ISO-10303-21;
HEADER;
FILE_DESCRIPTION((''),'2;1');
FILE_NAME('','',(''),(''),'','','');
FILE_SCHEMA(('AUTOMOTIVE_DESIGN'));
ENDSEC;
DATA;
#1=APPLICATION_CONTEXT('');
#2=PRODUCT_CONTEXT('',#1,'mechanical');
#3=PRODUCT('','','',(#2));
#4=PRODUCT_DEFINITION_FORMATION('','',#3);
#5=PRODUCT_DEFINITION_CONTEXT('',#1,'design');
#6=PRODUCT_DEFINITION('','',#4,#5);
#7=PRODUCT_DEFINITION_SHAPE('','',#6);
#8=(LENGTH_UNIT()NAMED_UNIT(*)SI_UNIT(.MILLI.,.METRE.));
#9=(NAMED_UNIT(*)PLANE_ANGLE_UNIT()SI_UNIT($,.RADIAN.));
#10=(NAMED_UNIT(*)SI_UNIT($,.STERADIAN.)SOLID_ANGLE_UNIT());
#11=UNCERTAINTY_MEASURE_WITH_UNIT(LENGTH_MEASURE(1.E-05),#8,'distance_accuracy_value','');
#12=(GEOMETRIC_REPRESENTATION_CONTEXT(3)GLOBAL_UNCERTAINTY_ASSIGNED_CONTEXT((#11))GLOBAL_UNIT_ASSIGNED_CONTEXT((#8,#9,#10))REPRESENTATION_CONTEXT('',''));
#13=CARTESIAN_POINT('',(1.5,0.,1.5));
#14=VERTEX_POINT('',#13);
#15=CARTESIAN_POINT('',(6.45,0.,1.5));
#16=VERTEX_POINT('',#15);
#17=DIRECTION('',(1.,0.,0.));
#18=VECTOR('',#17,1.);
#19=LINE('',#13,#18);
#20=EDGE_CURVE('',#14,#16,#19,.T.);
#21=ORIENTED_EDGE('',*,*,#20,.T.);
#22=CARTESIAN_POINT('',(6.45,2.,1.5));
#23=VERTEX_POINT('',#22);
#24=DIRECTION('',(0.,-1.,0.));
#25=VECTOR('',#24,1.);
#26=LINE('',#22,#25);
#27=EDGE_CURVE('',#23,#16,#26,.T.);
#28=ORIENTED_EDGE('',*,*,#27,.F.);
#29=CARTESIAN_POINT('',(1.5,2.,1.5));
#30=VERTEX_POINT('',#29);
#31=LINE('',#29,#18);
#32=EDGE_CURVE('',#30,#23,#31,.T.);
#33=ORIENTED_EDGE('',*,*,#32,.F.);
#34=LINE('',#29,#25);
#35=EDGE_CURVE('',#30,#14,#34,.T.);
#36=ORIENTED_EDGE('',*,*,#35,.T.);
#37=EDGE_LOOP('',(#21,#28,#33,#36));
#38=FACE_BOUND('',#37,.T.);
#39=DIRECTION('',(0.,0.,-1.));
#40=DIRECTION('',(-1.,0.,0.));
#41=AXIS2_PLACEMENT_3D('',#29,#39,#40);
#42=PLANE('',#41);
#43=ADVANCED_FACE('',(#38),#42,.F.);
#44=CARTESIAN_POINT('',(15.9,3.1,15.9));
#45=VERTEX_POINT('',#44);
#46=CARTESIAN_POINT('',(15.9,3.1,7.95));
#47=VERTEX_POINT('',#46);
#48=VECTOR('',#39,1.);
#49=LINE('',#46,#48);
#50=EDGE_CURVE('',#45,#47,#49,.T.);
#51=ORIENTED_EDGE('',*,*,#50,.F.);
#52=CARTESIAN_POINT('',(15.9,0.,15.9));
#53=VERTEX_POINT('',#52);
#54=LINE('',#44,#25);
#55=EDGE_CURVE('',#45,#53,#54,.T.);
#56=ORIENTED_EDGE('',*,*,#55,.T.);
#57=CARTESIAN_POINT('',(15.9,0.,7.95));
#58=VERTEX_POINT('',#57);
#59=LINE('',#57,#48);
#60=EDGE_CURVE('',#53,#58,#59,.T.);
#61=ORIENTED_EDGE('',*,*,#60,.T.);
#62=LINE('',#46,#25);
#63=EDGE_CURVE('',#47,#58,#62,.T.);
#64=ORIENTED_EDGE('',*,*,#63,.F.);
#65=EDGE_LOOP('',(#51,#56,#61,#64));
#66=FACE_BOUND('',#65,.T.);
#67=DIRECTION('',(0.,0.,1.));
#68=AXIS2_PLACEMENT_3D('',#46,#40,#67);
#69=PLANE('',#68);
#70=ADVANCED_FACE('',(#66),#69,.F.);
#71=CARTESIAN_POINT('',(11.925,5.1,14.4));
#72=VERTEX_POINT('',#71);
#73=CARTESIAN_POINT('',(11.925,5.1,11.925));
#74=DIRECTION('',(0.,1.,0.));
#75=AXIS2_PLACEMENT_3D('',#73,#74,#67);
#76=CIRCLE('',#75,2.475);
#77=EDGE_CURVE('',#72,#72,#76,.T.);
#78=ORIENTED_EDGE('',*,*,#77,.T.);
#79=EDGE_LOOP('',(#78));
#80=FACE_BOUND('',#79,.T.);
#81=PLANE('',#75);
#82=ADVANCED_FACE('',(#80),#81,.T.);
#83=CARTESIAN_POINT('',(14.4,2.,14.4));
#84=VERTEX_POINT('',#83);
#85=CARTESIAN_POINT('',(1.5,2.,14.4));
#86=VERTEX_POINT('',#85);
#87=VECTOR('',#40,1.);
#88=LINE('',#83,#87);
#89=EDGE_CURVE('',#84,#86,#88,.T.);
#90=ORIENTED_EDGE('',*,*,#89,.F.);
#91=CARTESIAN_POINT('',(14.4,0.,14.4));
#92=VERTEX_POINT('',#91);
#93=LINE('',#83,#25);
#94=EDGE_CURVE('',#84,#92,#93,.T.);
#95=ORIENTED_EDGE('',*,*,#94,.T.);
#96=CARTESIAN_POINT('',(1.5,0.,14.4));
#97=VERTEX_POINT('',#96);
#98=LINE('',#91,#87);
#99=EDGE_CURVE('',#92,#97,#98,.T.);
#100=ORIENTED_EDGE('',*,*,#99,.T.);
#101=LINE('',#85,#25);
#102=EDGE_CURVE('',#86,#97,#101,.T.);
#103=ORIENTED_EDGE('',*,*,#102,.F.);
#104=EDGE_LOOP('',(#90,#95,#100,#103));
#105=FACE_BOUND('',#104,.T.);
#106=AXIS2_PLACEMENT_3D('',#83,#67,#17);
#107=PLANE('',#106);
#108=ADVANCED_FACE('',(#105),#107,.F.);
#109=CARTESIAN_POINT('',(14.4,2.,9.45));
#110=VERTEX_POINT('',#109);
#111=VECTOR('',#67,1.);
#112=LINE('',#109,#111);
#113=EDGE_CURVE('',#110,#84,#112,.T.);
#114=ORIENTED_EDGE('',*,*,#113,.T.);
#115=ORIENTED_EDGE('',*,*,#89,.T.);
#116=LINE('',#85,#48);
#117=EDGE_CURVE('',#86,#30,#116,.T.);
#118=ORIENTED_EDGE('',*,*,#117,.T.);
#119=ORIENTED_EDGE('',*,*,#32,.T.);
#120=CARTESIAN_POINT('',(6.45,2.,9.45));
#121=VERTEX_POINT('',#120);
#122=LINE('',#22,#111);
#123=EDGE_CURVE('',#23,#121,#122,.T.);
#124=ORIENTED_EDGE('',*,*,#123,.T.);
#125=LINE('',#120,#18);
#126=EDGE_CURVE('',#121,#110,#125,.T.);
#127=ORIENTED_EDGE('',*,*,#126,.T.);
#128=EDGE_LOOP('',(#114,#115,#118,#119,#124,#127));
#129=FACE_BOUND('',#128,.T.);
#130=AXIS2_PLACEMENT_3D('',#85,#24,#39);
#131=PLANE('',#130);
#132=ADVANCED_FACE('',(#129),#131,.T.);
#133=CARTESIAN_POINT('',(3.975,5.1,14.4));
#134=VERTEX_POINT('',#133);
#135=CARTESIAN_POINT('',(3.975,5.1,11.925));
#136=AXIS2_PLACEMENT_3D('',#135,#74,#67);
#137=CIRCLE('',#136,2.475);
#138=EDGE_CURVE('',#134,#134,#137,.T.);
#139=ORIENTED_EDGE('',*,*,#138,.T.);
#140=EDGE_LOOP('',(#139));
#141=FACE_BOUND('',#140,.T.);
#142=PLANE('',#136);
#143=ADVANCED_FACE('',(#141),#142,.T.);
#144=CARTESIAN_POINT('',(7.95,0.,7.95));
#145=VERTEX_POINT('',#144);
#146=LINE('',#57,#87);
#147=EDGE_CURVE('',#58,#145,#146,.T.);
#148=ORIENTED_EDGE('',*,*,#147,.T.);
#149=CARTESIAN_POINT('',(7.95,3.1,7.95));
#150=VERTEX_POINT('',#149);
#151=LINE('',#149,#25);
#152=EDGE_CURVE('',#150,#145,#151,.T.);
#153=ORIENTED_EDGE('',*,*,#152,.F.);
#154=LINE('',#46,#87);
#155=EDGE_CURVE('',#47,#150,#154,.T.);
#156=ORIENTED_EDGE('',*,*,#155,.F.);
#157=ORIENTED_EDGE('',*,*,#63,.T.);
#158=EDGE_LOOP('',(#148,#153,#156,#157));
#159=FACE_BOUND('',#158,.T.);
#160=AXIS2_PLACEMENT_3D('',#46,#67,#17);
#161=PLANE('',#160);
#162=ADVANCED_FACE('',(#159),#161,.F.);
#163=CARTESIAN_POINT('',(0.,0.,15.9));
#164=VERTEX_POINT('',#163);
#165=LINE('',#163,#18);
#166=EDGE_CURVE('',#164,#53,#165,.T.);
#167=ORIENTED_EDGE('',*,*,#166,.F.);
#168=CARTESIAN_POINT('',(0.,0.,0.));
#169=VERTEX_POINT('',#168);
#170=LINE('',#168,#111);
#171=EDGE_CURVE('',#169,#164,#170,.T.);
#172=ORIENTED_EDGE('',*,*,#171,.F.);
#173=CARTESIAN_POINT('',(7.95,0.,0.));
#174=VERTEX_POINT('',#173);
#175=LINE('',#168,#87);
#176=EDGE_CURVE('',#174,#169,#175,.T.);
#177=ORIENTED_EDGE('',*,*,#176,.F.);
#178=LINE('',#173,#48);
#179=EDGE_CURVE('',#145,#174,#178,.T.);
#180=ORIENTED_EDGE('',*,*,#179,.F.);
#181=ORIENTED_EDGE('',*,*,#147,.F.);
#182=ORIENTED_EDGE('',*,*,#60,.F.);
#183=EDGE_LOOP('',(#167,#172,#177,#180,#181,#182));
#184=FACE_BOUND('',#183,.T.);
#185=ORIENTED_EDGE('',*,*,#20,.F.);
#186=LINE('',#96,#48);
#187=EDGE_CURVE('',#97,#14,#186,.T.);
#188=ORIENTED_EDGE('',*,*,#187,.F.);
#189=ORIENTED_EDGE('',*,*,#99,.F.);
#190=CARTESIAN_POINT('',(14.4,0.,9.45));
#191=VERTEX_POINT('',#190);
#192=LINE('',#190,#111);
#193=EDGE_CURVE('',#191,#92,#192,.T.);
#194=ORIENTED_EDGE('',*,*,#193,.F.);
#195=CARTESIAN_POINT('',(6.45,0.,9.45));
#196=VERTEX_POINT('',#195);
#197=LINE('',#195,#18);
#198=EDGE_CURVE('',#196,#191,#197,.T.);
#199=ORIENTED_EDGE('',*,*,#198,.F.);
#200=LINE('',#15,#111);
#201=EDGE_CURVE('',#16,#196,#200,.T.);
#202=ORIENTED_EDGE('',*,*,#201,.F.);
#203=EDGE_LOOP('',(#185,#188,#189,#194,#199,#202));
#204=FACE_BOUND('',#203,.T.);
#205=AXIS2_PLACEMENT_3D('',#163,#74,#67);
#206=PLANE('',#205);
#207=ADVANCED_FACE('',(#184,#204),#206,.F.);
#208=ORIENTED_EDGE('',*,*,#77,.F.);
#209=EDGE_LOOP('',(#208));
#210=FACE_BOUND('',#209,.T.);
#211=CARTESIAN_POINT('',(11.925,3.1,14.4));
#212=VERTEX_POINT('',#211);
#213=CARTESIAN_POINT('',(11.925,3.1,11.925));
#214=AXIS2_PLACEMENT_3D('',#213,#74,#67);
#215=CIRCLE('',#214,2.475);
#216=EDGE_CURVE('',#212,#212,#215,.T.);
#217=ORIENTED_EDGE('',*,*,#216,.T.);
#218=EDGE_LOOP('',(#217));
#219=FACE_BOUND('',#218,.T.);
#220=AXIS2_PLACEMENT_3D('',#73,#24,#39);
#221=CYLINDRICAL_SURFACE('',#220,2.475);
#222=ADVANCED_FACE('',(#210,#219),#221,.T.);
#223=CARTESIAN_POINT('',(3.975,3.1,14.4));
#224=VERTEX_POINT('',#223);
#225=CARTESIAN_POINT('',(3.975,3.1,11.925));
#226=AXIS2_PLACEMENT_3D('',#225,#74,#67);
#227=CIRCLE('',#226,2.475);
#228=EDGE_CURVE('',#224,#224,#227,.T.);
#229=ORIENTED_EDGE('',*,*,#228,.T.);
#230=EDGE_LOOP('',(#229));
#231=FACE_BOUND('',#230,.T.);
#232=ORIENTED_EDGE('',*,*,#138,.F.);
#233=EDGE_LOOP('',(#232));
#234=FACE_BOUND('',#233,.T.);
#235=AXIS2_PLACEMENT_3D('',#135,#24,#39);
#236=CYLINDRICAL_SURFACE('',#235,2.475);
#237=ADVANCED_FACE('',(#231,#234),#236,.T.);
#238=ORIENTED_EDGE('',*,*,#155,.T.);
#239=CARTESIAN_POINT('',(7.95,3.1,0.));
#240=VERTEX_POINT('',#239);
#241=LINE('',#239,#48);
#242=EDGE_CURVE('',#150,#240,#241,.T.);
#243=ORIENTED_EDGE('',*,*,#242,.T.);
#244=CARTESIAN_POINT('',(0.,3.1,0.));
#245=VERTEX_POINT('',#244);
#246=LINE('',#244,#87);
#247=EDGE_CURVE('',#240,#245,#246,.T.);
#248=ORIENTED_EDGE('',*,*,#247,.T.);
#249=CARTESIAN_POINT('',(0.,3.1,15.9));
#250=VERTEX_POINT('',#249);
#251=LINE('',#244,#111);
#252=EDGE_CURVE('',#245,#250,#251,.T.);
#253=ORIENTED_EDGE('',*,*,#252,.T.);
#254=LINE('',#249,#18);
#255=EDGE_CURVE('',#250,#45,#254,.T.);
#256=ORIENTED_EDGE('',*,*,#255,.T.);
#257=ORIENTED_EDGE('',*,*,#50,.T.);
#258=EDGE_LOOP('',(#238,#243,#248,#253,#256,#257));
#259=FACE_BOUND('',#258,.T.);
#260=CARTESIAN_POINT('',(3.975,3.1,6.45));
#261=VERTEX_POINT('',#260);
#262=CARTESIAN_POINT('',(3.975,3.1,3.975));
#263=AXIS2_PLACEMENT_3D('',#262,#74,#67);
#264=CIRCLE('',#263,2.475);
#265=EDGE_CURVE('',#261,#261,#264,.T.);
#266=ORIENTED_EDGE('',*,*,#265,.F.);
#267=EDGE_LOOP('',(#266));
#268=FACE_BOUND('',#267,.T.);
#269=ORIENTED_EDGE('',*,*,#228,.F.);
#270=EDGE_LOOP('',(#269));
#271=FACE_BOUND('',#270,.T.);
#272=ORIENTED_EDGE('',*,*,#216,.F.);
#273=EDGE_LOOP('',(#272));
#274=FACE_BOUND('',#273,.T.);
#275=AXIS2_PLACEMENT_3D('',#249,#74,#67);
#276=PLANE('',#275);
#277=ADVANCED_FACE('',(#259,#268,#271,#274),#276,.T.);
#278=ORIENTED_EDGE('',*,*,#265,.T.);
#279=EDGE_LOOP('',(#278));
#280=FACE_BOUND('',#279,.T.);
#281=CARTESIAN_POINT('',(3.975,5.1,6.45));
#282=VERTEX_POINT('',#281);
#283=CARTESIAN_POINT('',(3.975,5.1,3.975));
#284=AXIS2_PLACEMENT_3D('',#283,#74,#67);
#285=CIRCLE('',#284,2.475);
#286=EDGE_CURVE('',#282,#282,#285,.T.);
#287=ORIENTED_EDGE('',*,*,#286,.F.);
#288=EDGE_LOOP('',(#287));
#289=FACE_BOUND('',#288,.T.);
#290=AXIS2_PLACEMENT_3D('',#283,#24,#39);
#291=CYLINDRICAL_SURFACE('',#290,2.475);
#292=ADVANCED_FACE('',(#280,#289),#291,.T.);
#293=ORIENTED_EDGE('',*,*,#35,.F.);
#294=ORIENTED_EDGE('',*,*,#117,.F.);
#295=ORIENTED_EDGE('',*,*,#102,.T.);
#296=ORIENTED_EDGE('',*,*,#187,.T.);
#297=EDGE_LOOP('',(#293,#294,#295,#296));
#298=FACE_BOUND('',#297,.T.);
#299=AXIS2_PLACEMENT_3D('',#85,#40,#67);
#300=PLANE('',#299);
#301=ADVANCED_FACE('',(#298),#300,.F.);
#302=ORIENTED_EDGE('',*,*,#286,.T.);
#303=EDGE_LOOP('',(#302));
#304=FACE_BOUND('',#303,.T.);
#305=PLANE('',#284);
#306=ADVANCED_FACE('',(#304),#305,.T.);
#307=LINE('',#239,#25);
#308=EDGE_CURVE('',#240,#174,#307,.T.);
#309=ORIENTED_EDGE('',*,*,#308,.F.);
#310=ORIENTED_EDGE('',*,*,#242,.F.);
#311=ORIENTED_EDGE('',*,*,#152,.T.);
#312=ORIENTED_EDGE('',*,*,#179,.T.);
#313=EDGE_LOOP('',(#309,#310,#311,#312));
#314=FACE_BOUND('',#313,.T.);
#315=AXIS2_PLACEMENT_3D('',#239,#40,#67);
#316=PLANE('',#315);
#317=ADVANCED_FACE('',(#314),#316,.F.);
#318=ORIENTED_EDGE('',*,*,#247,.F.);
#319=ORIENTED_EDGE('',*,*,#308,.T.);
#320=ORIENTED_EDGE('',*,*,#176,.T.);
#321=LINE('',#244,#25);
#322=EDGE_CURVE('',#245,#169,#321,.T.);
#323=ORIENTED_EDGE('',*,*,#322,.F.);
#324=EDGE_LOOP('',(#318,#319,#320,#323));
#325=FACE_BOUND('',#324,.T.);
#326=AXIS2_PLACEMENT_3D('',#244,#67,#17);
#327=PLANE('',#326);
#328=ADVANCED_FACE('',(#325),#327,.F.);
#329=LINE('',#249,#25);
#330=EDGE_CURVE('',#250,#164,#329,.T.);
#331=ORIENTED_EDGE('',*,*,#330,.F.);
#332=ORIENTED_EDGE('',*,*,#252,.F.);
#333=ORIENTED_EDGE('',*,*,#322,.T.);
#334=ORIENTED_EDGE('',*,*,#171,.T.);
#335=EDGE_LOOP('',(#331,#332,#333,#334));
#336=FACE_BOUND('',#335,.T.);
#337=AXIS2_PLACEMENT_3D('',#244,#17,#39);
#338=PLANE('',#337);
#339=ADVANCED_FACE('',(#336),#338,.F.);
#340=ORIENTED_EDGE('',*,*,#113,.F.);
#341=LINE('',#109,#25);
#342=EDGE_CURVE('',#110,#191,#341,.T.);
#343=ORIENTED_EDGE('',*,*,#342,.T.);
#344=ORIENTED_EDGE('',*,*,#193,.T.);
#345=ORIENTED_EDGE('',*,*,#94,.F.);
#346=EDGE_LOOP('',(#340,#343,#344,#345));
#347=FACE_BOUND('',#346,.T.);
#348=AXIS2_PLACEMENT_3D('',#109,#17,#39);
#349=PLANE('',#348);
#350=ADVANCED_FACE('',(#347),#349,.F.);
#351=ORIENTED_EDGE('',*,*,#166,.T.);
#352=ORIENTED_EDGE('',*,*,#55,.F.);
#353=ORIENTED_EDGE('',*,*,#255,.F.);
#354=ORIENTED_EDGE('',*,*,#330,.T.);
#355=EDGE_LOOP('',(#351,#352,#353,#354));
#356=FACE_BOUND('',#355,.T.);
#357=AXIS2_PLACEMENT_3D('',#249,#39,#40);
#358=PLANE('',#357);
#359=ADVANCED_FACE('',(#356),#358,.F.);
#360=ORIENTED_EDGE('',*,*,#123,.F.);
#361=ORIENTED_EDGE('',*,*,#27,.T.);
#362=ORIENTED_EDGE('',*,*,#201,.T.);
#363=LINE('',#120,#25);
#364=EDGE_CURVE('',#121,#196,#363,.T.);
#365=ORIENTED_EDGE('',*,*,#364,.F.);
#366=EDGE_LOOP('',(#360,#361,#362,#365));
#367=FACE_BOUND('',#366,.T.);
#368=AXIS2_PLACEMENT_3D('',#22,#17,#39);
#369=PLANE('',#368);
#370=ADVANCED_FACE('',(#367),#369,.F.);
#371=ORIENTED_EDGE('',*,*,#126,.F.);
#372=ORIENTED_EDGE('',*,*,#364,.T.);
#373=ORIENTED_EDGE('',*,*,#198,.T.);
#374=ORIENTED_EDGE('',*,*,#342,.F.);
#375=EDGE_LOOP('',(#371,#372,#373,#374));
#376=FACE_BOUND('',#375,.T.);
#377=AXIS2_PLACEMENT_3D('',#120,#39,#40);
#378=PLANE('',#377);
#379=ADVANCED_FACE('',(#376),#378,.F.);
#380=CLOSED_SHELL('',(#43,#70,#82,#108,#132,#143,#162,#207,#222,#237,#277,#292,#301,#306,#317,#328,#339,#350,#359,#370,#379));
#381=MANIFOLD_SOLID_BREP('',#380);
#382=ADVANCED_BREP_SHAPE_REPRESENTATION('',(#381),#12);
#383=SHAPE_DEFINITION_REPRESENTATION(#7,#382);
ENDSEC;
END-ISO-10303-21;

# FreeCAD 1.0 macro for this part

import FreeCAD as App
import Part
import Sketcher

V = App.Vector
Q = App.Units.Quantity

doc = App.newDocument("Part")
body = doc.addObject("PartDesign::Body", "Body")

sketch1 = body.newObject("Sketcher::SketchObject", "Sketch")
sketch1.AttachmentSupport = (doc.getObject("XZ_Plane"), [""])
sketch1.MapMode = "FlatFace"
sketch1.addGeometry([
    Part.LineSegment(V(8, 0, 0), V(0, 0, 0)),
    Part.LineSegment(V(0, 0, 0), V(0, 16, 0)),
    Part.LineSegment(V(0, 16, 0), V(16, 16, 0)),
    Part.LineSegment(V(16, 16, 0), V(16, 8, 0)),
    Part.LineSegment(V(16, 8, 0), V(8, 8, 0)),
    Part.LineSegment(V(8, 8, 0), V(8, 0, 0)),
], False)
sketch1.addConstraint([
    Sketcher.Constraint("Coincident", 0, 2, 1, 1),
    Sketcher.Constraint("Coincident", 1, 2, 2, 1),
    Sketcher.Constraint("Coincident", 2, 2, 3, 1),
    Sketcher.Constraint("Coincident", 3, 2, 4, 1),
    Sketcher.Constraint("Coincident", 4, 2, 5, 1),
    Sketcher.Constraint("Coincident", 5, 2, 0, 1),
    Sketcher.Constraint("Horizontal", 0),
    Sketcher.Constraint("Vertical", 1),
    Sketcher.Constraint("Horizontal", 2),
    Sketcher.Constraint("Vertical", 3),
    Sketcher.Constraint("Horizontal", 4),
    Sketcher.Constraint("Vertical", 5),
    Sketcher.Constraint("Coincident", 0, 2, -1, 1),
    Sketcher.Constraint("Equal", 0, 4),
    Sketcher.Constraint("Equal", 2, 1),
    Sketcher.Constraint("Equal", 4, 3),
    Sketcher.Constraint("DistanceX", 2, 1, 2, 2, Q("15.9 mm")),
])
pad1 = body.newObject("PartDesign::Pad", "Pad")
pad1.Profile = sketch1
pad1.Length = 3.1
pad1.Reversed = True

sketch2 = body.newObject("Sketcher::SketchObject", "Sketch001")
sketch2.AttachmentSupport = (doc.getObject("XZ_Plane"), [""])
sketch2.MapMode = "FlatFace"
sketch2.AttachmentOffset = App.Placement(V(0, 0, -3.1), App.Rotation())
sketch2.addGeometry([
    Part.Circle(V(4, 4, 0), V(0, 0, 1), 2.5),
    Part.Circle(V(4, 11.9, 0), V(0, 0, 1), 2.5),
    Part.Circle(V(11.9, 11.9, 0), V(0, 0, 1), 2.5),
], False)
sketch2.addConstraint([
    Sketcher.Constraint("Equal", 0, 1),
    Sketcher.Constraint("Equal", 1, 2),
    Sketcher.Constraint("Horizontal", 1, 3, 2, 3),
    Sketcher.Constraint("Vertical", 0, 3, 1, 3),
    Sketcher.Constraint("Diameter", 0, Q("4.95 mm")),
    Sketcher.Constraint("DistanceY", 0, 3, 1, 3, Q("7.95 mm")),
    Sketcher.Constraint("DistanceX", 1, 3, 2, 3, Q("7.95 mm")),
    Sketcher.Constraint("DistanceX", -1, 1, 0, 3, Q("3.975 mm")),
    Sketcher.Constraint("DistanceY", -1, 1, 0, 3, Q("3.975 mm")),
])
pad2 = body.newObject("PartDesign::Pad", "Pad001")
pad2.Profile = sketch2
pad2.Length = 2
pad2.Reversed = True

sketch3 = body.newObject("Sketcher::SketchObject", "Sketch002")
sketch3.AttachmentSupport = (doc.getObject("XZ_Plane"), [""])
sketch3.MapMode = "FlatFace"
sketch3.addGeometry([
    Part.LineSegment(V(1.5, 14.4, 0), V(1.5, 1.5, 0)),
    Part.LineSegment(V(1.5, 1.5, 0), V(6.5, 1.5, 0)),
    Part.LineSegment(V(6.5, 1.5, 0), V(6.5, 9.4, 0)),
    Part.LineSegment(V(6.5, 9.4, 0), V(14.4, 9.4, 0)),
    Part.LineSegment(V(14.4, 9.4, 0), V(14.4, 14.4, 0)),
    Part.LineSegment(V(14.4, 14.4, 0), V(1.5, 14.4, 0)),
], False)
sketch3.addConstraint([
    Sketcher.Constraint("Coincident", 0, 2, 1, 1),
    Sketcher.Constraint("Coincident", 1, 2, 2, 1),
    Sketcher.Constraint("Coincident", 2, 2, 3, 1),
    Sketcher.Constraint("Coincident", 3, 2, 4, 1),
    Sketcher.Constraint("Coincident", 4, 2, 5, 1),
    Sketcher.Constraint("Coincident", 5, 2, 0, 1),
    Sketcher.Constraint("Vertical", 0),
    Sketcher.Constraint("Horizontal", 1),
    Sketcher.Constraint("Vertical", 2),
    Sketcher.Constraint("Horizontal", 3),
    Sketcher.Constraint("Vertical", 4),
    Sketcher.Constraint("Horizontal", 5),
    Sketcher.Constraint("Equal", 5, 0),
    Sketcher.Constraint("Equal", 3, 2),
    Sketcher.Constraint("DistanceX", 5, 2, 5, 1, Q("12.9 mm")),
    Sketcher.Constraint("DistanceX", 1, 1, 1, 2, Q("4.95 mm")),
    Sketcher.Constraint("DistanceX", -1, 1, 0, 2, Q("1.5 mm")),
    Sketcher.Constraint("DistanceY", -1, 1, 0, 2, Q("1.5 mm")),
])
pocket1 = body.newObject("PartDesign::Pocket", "Pocket")
pocket1.Profile = sketch3
pocket1.Length = 2

doc.recompute()
